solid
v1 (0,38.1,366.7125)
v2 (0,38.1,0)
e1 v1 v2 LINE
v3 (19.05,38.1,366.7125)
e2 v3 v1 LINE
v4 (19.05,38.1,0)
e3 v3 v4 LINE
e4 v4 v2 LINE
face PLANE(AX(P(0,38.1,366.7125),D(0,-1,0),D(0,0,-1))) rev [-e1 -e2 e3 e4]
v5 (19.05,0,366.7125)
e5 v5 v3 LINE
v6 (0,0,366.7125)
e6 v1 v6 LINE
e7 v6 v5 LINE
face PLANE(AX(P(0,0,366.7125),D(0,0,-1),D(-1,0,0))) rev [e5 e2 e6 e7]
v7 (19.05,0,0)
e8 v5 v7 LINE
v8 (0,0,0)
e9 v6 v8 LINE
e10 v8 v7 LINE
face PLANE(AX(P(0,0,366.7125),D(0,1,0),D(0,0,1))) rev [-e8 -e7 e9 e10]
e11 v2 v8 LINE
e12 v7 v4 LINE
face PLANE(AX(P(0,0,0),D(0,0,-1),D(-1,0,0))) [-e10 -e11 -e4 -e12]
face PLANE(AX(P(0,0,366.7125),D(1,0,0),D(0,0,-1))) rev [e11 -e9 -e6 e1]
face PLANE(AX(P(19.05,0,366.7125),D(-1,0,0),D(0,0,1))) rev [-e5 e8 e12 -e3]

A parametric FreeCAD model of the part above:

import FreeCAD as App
import Part
import Sketcher

V = App.Vector
Q = App.Units.Quantity

doc = App.newDocument("Part")
body = doc.addObject("PartDesign::Body", "Body")

sketch1 = body.newObject("Sketcher::SketchObject", "Sketch")
sketch1.AttachmentSupport = (doc.getObject("XY_Plane"), [""])
sketch1.MapMode = "FlatFace"
sketch1.addGeometry([
    Part.LineSegment(V(0, 38, 0), V(0, 0, 0)),
    Part.LineSegment(V(0, 0, 0), V(19, 0, 0)),
    Part.LineSegment(V(19, 0, 0), V(19, 38, 0)),
    Part.LineSegment(V(19, 38, 0), V(0, 38, 0)),
], False)
sketch1.addConstraint([
    Sketcher.Constraint("Coincident", 0, 2, 1, 1),
    Sketcher.Constraint("Coincident", 1, 2, 2, 1),
    Sketcher.Constraint("Coincident", 2, 2, 3, 1),
    Sketcher.Constraint("Coincident", 3, 2, 0, 1),
    Sketcher.Constraint("Vertical", 0),
    Sketcher.Constraint("Horizontal", 1),
    Sketcher.Constraint("Vertical", 2),
    Sketcher.Constraint("Horizontal", 3),
    Sketcher.Constraint("Coincident", 0, 2, -1, 1),
    Sketcher.Constraint("DistanceY", 0, 2, 0, 1, Q("1.5 in")),
    Sketcher.Constraint("DistanceX", 1, 1, 1, 2, Q("0.75 in")),
])
pad1 = body.newObject("PartDesign::Pad", "Pad")
pad1.Profile = sketch1
pad1.Length = Q("14.4375 in")

doc.recompute()
